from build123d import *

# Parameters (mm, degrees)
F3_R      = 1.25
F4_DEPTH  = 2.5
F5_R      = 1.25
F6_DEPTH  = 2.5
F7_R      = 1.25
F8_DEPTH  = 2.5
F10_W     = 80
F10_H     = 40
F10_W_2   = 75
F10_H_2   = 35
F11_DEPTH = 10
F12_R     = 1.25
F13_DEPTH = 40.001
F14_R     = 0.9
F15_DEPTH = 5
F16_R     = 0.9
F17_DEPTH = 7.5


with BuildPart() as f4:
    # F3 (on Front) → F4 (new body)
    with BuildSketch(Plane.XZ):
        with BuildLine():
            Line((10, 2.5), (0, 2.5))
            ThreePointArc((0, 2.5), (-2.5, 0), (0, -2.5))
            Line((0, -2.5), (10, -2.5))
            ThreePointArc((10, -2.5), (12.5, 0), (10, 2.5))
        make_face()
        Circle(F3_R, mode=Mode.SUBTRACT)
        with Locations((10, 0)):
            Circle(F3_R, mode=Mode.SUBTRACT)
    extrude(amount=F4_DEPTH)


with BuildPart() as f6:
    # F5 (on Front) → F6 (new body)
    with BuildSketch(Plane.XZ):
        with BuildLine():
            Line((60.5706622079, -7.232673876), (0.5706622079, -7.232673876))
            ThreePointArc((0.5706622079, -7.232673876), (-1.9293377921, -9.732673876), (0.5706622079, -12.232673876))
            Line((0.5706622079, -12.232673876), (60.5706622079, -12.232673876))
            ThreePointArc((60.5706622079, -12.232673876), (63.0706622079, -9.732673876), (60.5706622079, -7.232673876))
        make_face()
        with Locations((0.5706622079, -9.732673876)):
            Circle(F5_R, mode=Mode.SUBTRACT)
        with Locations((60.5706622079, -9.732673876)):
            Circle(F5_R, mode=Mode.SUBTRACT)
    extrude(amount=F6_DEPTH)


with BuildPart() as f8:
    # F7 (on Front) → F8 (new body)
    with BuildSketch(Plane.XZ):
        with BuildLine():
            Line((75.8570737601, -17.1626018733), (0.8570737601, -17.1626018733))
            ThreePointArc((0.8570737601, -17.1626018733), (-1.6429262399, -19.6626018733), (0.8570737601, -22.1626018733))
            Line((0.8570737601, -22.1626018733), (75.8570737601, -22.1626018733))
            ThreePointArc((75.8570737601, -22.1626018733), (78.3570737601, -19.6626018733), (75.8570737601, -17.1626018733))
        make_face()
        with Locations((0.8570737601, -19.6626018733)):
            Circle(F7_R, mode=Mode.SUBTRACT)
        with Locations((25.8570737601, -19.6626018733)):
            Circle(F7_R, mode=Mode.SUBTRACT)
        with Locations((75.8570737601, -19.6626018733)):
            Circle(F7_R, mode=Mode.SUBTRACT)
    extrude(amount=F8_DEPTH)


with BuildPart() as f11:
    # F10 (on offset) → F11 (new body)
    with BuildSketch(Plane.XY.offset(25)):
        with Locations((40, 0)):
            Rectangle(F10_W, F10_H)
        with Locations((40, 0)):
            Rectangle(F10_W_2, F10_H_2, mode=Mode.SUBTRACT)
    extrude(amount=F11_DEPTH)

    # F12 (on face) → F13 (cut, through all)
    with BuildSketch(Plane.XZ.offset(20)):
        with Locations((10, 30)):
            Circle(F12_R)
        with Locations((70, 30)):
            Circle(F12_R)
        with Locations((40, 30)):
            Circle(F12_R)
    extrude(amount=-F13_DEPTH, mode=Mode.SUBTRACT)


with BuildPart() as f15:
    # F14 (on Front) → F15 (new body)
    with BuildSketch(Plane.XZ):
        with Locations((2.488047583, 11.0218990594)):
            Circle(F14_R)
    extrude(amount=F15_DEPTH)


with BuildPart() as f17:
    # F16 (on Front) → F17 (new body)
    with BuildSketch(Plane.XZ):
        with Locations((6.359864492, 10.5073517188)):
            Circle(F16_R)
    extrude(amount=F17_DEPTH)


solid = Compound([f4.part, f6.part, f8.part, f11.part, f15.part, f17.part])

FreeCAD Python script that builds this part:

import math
import FreeCAD as App
import Part
import Sketcher

V = App.Vector
Q = App.Units.Quantity


def add_polygon(sketch, points):
    """Adds a closed chain of lines whose ends are joined by coincident constraints."""
    first, n = sketch.GeometryCount, len(points)
    for a, b in zip(points, points[1:] + points[:1]):
        sketch.addGeometry(Part.LineSegment(App.Vector(*a, 0), App.Vector(*b, 0)), False)
    for i in range(n):
        sketch.addConstraint(Sketcher.Constraint("Coincident", first + i, 2, first + (i + 1) % n, 1))

doc = App.newDocument("Part")
body = doc.addObject("PartDesign::Body", "Body")

sketch1 = body.newObject("Sketcher::SketchObject", "Sketch")
sketch1.AttachmentSupport = (doc.getObject("XZ_Plane"), [""])
sketch1.MapMode = "FlatFace"
sketch1.addGeometry([
    Part.LineSegment(V(10, 2.5, 0), V(0, 2.5, 0)),
    Part.ArcOfCircle(Part.Circle(V(0, 0, 0), V(0, 0, 1), 2.5), math.radians(90), math.radians(270)),
    Part.LineSegment(V(0, -2.5, 0), V(10, -2.5, 0)),
    Part.ArcOfCircle(Part.Circle(V(10, 0, 0), V(0, 0, 1), 2.5), math.radians(-90), math.radians(90)),
    Part.Circle(V(0, 0, 0), V(0, 0, 1), 1.2),
    Part.Circle(V(10, 0, 0), V(0, 0, 1), 1.2),
], False)
sketch1.addConstraint([
    Sketcher.Constraint("Tangent", 0, 2, 1, 1),
    Sketcher.Constraint("Tangent", 1, 2, 2, 1),
    Sketcher.Constraint("Tangent", 2, 2, 3, 1),
    Sketcher.Constraint("Tangent", 3, 2, 0, 1),
    Sketcher.Constraint("Horizontal", 0),
    Sketcher.Constraint("Horizontal", 2),
    Sketcher.Constraint("Coincident", 1, 3, -1, 1),
    Sketcher.Constraint("Coincident", 4, 3, -1, 1),
    Sketcher.Constraint("Coincident", 5, 3, 3, 3),
    Sketcher.Constraint("Equal", 4, 5),
    Sketcher.Constraint("Diameter", 4, Q("2.5 mm")),
    Sketcher.Constraint("Radius", 1, Q("2.5 mm")),
    Sketcher.Constraint("DistanceX", 0, 2, 0, 1, Q("10 mm")),
])
pad1 = body.newObject("PartDesign::Pad", "Pad")
pad1.Profile = sketch1
pad1.Length = 2.5
body2 = doc.addObject("PartDesign::Body", "Body001")

sketch2 = body2.newObject("Sketcher::SketchObject", "Sketch001")
sketch2.AttachmentSupport = (doc.getObject("XZ_Plane001"), [""])
sketch2.MapMode = "FlatFace"
sketch2.addGeometry([
    Part.LineSegment(V(60.6, -7.2, 0), V(0.6, -7.2, 0)),
    Part.ArcOfCircle(Part.Circle(V(0.6, -9.7, 0), V(0, 0, 1), 2.5), math.radians(90), math.radians(270)),
    Part.LineSegment(V(0.6, -12.2, 0), V(60.6, -12.2, 0)),
    Part.ArcOfCircle(Part.Circle(V(60.6, -9.7, 0), V(0, 0, 1), 2.5), math.radians(-90), math.radians(90)),
    Part.Circle(V(0.6, -9.7, 0), V(0, 0, 1), 1.2),
    Part.Circle(V(60.6, -9.7, 0), V(0, 0, 1), 1.2),
], False)
sketch2.addConstraint([
    Sketcher.Constraint("Tangent", 0, 2, 1, 1),
    Sketcher.Constraint("Tangent", 1, 2, 2, 1),
    Sketcher.Constraint("Tangent", 2, 2, 3, 1),
    Sketcher.Constraint("Tangent", 3, 2, 0, 1),
    Sketcher.Constraint("Horizontal", 0),
    Sketcher.Constraint("Horizontal", 2),
    Sketcher.Constraint("Coincident", 4, 3, 1, 3),
    Sketcher.Constraint("Coincident", 5, 3, 3, 3),
    Sketcher.Constraint("Equal", 4, 5),
    Sketcher.Constraint("Diameter", 4, Q("2.5 mm")),
    Sketcher.Constraint("Radius", 1, Q("2.5 mm")),
    Sketcher.Constraint("DistanceX", 0, 2, 0, 1, Q("60 mm")),
    Sketcher.Constraint("DistanceX", -1, 1, 1, 3, Q("0.570662 mm")),
    Sketcher.Constraint("DistanceY", 1, 3, -1, 1, Q("9.732674 mm")),
])
pad2 = body2.newObject("PartDesign::Pad", "Pad001")
pad2.Profile = sketch2
pad2.Length = 2.5
body3 = doc.addObject("PartDesign::Body", "Body002")

sketch3 = body3.newObject("Sketcher::SketchObject", "Sketch002")
sketch3.AttachmentSupport = (doc.getObject("XZ_Plane002"), [""])
sketch3.MapMode = "FlatFace"
sketch3.addGeometry([
    Part.LineSegment(V(75.9, -17.2, 0), V(0.9, -17.2, 0)),
    Part.ArcOfCircle(Part.Circle(V(0.9, -19.7, 0), V(0, 0, 1), 2.5), math.radians(90), math.radians(270)),
    Part.LineSegment(V(0.9, -22.2, 0), V(75.9, -22.2, 0)),
    Part.ArcOfCircle(Part.Circle(V(75.9, -19.7, 0), V(0, 0, 1), 2.5), math.radians(-90), math.radians(90)),
    Part.Circle(V(0.9, -19.7, 0), V(0, 0, 1), 1.2),
    Part.Circle(V(25.9, -19.7, 0), V(0, 0, 1), 1.2),
    Part.Circle(V(75.9, -19.7, 0), V(0, 0, 1), 1.2),
], False)
sketch3.addConstraint([
    Sketcher.Constraint("Tangent", 0, 2, 1, 1),
    Sketcher.Constraint("Tangent", 1, 2, 2, 1),
    Sketcher.Constraint("Tangent", 2, 2, 3, 1),
    Sketcher.Constraint("Tangent", 3, 2, 0, 1),
    Sketcher.Constraint("Horizontal", 0),
    Sketcher.Constraint("Horizontal", 2),
    Sketcher.Constraint("Coincident", 4, 3, 1, 3),
    Sketcher.Constraint("Coincident", 6, 3, 3, 3),
    Sketcher.Constraint("Equal", 4, 5),
    Sketcher.Constraint("Equal", 5, 6),
    Sketcher.Constraint("Horizontal", 4, 3, 5, 3),
    Sketcher.Constraint("Diameter", 4, Q("2.5 mm")),
    Sketcher.Constraint("Radius", 1, Q("2.5 mm")),
    Sketcher.Constraint("DistanceX", 0, 2, 0, 1, Q("75 mm")),
    Sketcher.Constraint("DistanceX", 1, 3, 5, 3, Q("25 mm")),
    Sketcher.Constraint("DistanceY", 1, 3, -1, 1, Q("19.662602 mm")),
    Sketcher.Constraint("DistanceX", -1, 1, 1, 3, Q("0.857074 mm")),
])
pad3 = body3.newObject("PartDesign::Pad", "Pad002")
pad3.Profile = sketch3
pad3.Length = 2.5
body4 = doc.addObject("PartDesign::Body", "Body003")

sketch4 = body4.newObject("Sketcher::SketchObject", "Sketch003")
sketch4.AttachmentSupport = (doc.getObject("XY_Plane003"), [""])
sketch4.MapMode = "FlatFace"
sketch4.AttachmentOffset = App.Placement(V(0, 0, 25), App.Rotation())
add_polygon(sketch4, [(0, 20), (0, -20), (80, -20), (80, 20)])
add_polygon(sketch4, [(78, -18), (2, -18), (2, 18), (78, 18)])
sketch4.addConstraint([
    Sketcher.Constraint("Vertical", 0),
    Sketcher.Constraint("Horizontal", 1),
    Sketcher.Constraint("Vertical", 2),
    Sketcher.Constraint("Horizontal", 3),
    Sketcher.Constraint("Horizontal", 4),
    Sketcher.Constraint("Vertical", 5),
    Sketcher.Constraint("Horizontal", 6),
    Sketcher.Constraint("Vertical", 7),
    Sketcher.Constraint("Symmetric", 0, 2, 3, 2, -1, 1),
    Sketcher.Constraint("DistanceX", 1, 1, 1, 2, Q("80 mm")),
    Sketcher.Constraint("DistanceX", 4, 2, 4, 1, Q("75 mm")),
    Sketcher.Constraint("DistanceY", 0, 2, 0, 1, Q("40 mm")),
    Sketcher.Constraint("DistanceY", 5, 1, 5, 2, Q("35 mm")),
    Sketcher.Constraint("DistanceX", -1, 1, 4, 2, Q("2.5 mm")),
    Sketcher.Constraint("DistanceY", 4, 2, -1, 1, Q("17.5 mm")),
])
pad4 = body4.newObject("PartDesign::Pad", "Pad003")
pad4.Profile = sketch4
pad4.Length = 10

sketch5 = body4.newObject("Sketcher::SketchObject", "Sketch004")
sketch5.AttachmentSupport = (doc.getObject("XZ_Plane003"), [""])
sketch5.MapMode = "FlatFace"
sketch5.AttachmentOffset = App.Placement(V(0, 0, 20), App.Rotation())
sketch5.addGeometry([
    Part.Circle(V(10, 30, 0), V(0, 0, 1), 1.2),
    Part.Circle(V(70, 30, 0), V(0, 0, 1), 1.2),
    Part.Circle(V(40, 30, 0), V(0, 0, 1), 1.2),
], False)
sketch5.addConstraint([
    Sketcher.Constraint("Equal", 0, 1),
    Sketcher.Constraint("Equal", 1, 2),
    Sketcher.Constraint("Horizontal", 0, 3, 1, 3),
    Sketcher.Constraint("Horizontal", 1, 3, 2, 3),
    Sketcher.Constraint("Diameter", 0, Q("2.5 mm")),
    Sketcher.Constraint("DistanceX", -1, 1, 0, 3, Q("10 mm")),
    Sketcher.Constraint("DistanceY", -1, 1, 0, 3, Q("30 mm")),
    Sketcher.Constraint("DistanceX", -1, 1, 1, 3, Q("70 mm")),
    Sketcher.Constraint("DistanceX", -1, 1, 2, 3, Q("40 mm")),
])
pocket1 = body4.newObject("PartDesign::Pocket", "Pocket")
pocket1.Profile = sketch5
pocket1.Type = "ThroughAll"
body5 = doc.addObject("PartDesign::Body", "Body004")

sketch6 = body5.newObject("Sketcher::SketchObject", "Sketch005")
sketch6.AttachmentSupport = (doc.getObject("XZ_Plane004"), [""])
sketch6.MapMode = "FlatFace"
sketch6.addGeometry(Part.Circle(V(2.5, 11, 0), V(0, 0, 1), 0.9), False)
sketch6.addConstraint([
    Sketcher.Constraint("Diameter", 0, Q("1.8 mm")),
    Sketcher.Constraint("DistanceY", -1, 1, 0, 3, Q("11.021899 mm")),
    Sketcher.Constraint("DistanceX", -1, 1, 0, 3, Q("2.488048 mm")),
])
pad5 = body5.newObject("PartDesign::Pad", "Pad004")
pad5.Profile = sketch6
pad5.Length = 5
body6 = doc.addObject("PartDesign::Body", "Body005")

sketch7 = body6.newObject("Sketcher::SketchObject", "Sketch006")
sketch7.AttachmentSupport = (doc.getObject("XZ_Plane005"), [""])
sketch7.MapMode = "FlatFace"
sketch7.addGeometry(Part.Circle(V(6.4, 10.5, 0), V(0, 0, 1), 0.9), False)
sketch7.addConstraint([
    Sketcher.Constraint("Diameter", 0, Q("1.8 mm")),
    Sketcher.Constraint("DistanceY", -1, 1, 0, 3, Q("10.507352 mm")),
    Sketcher.Constraint("DistanceX", -1, 1, 0, 3, Q("6.359864 mm")),
])
pad6 = body6.newObject("PartDesign::Pad", "Pad005")
pad6.Profile = sketch7
pad6.Length = 7.5

doc.recompute()
